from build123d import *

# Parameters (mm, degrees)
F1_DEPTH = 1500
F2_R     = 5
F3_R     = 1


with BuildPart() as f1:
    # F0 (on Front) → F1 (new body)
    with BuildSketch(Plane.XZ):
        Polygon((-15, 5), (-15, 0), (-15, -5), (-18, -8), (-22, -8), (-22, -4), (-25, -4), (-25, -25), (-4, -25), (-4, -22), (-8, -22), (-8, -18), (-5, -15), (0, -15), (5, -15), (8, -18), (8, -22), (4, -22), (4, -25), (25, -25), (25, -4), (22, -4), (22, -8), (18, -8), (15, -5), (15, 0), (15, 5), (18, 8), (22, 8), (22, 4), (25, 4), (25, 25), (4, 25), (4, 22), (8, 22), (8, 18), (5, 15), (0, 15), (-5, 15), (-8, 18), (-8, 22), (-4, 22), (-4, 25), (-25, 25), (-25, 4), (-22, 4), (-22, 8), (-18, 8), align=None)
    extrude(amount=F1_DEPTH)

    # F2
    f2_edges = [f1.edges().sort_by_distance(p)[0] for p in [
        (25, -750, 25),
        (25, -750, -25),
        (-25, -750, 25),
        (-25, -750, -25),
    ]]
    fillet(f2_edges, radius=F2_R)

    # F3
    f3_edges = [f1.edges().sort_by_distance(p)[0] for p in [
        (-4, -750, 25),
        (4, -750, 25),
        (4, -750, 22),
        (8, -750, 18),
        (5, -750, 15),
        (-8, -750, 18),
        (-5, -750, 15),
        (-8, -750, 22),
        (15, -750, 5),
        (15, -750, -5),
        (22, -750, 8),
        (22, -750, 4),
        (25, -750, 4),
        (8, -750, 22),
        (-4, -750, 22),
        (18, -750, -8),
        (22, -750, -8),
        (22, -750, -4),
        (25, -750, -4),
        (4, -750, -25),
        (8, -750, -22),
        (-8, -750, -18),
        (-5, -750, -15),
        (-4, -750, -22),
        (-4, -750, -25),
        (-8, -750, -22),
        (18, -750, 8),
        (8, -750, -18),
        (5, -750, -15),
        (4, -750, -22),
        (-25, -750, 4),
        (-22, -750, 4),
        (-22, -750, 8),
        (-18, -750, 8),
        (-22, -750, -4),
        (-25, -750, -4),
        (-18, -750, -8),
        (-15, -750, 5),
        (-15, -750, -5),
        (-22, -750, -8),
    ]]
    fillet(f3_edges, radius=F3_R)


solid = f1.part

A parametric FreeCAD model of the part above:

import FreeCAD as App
import Part
import Sketcher

V = App.Vector
Q = App.Units.Quantity


def edges_at(feature, points):
    """Names of the edges that pass closest to the given points."""
    edges = feature.Shape.Edges
    near = lambda p: min(range(len(edges)), key=lambda i: edges[i].distToShape(Part.Vertex(*p))[0])
    return sorted({f"Edge{near(p) + 1}" for p in points})


def add_polygon(sketch, points):
    """Adds a closed chain of lines whose ends are joined by coincident constraints."""
    first, n = sketch.GeometryCount, len(points)
    for a, b in zip(points, points[1:] + points[:1]):
        sketch.addGeometry(Part.LineSegment(App.Vector(*a, 0), App.Vector(*b, 0)), False)
    for i in range(n):
        sketch.addConstraint(Sketcher.Constraint("Coincident", first + i, 2, first + (i + 1) % n, 1))

doc = App.newDocument("Part")
body = doc.addObject("PartDesign::Body", "Body")

# Sketch on XZ plane
sketch1 = body.newObject("Sketcher::SketchObject", "Sketch")
sketch1.AttachmentSupport = (doc.getObject("XZ_Plane"), [""])
sketch1.MapMode = "FlatFace"
add_polygon(sketch1, [(-15, 5), (-15, -5), (-18, -8), (-22, -8), (-22, -4), (-25, -4), (-25, -25), (-4, -25), (-4, -22), (-8, -22), (-8, -18), (-5, -15), (5, -15), (8, -18), (8, -22), (4, -22), (4, -25), (25, -25), (25, -4), (22, -4), (22, -8), (18, -8), (15, -5), (15, 5), (18, 8), (22, 8), (22, 4), (25, 4), (25, 25), (4, 25), (4, 22), (8, 22), (8, 18), (5, 15), (-5, 15), (-8, 18), (-8, 22), (-4, 22), (-4, 25), (-25, 25), (-25, 4), (-22, 4), (-22, 8), (-18, 8)])  # lines 0-43
sketch1.addConstraint(Sketcher.Constraint("Vertical", 0))
sketch1.addConstraint(Sketcher.Constraint("Horizontal", 2))
sketch1.addConstraint(Sketcher.Constraint("Vertical", 3))
sketch1.addConstraint(Sketcher.Constraint("Horizontal", 4))
sketch1.addConstraint(Sketcher.Constraint("Vertical", 5))
sketch1.addConstraint(Sketcher.Constraint("Horizontal", 6))
sketch1.addConstraint(Sketcher.Constraint("Vertical", 7))
sketch1.addConstraint(Sketcher.Constraint("Horizontal", 8))
sketch1.addConstraint(Sketcher.Constraint("Vertical", 9))
sketch1.addConstraint(Sketcher.Constraint("Horizontal", 11))
sketch1.addConstraint(Sketcher.Constraint("Vertical", 13))
sketch1.addConstraint(Sketcher.Constraint("Horizontal", 14))
sketch1.addConstraint(Sketcher.Constraint("Vertical", 15))
sketch1.addConstraint(Sketcher.Constraint("Horizontal", 16))
sketch1.addConstraint(Sketcher.Constraint("Vertical", 17))
sketch1.addConstraint(Sketcher.Constraint("Horizontal", 18))
sketch1.addConstraint(Sketcher.Constraint("Vertical", 19))
sketch1.addConstraint(Sketcher.Constraint("Horizontal", 20))
sketch1.addConstraint(Sketcher.Constraint("Vertical", 22))
sketch1.addConstraint(Sketcher.Constraint("Horizontal", 24))
sketch1.addConstraint(Sketcher.Constraint("Vertical", 25))
sketch1.addConstraint(Sketcher.Constraint("Horizontal", 26))
sketch1.addConstraint(Sketcher.Constraint("Vertical", 27))
sketch1.addConstraint(Sketcher.Constraint("Horizontal", 28))
sketch1.addConstraint(Sketcher.Constraint("Vertical", 29))
sketch1.addConstraint(Sketcher.Constraint("Horizontal", 30))
sketch1.addConstraint(Sketcher.Constraint("Vertical", 31))
sketch1.addConstraint(Sketcher.Constraint("Horizontal", 33))
sketch1.addConstraint(Sketcher.Constraint("Vertical", 35))
sketch1.addConstraint(Sketcher.Constraint("Horizontal", 36))
sketch1.addConstraint(Sketcher.Constraint("Vertical", 37))
sketch1.addConstraint(Sketcher.Constraint("Horizontal", 38))
sketch1.addConstraint(Sketcher.Constraint("Vertical", 39))
sketch1.addConstraint(Sketcher.Constraint("Horizontal", 40))
sketch1.addConstraint(Sketcher.Constraint("Vertical", 41))
sketch1.addConstraint(Sketcher.Constraint("Horizontal", 42))
sketch1.addConstraint(Sketcher.Constraint("Symmetric", 0, 2, 22, 2, -1, 1))
sketch1.addConstraint(Sketcher.Constraint("Symmetric", 1, 2, 23, 2, -1, 1))
sketch1.addConstraint(Sketcher.Constraint("Symmetric", 3, 2, 25, 2, -1, 1))
sketch1.addConstraint(Sketcher.Constraint("Symmetric", 5, 2, 27, 2, -1, 1))
sketch1.addConstraint(Sketcher.Constraint("Symmetric", 7, 2, 29, 2, -1, 1))
sketch1.addConstraint(Sketcher.Constraint("Symmetric", 9, 2, 31, 2, -1, 1))
sketch1.addConstraint(Sketcher.Constraint("Symmetric", 10, 2, 32, 2, -1, 1))
sketch1.addConstraint(Sketcher.Constraint("Symmetric", 12, 2, 34, 2, -1, 1))
sketch1.addConstraint(Sketcher.Constraint("Symmetric", 14, 2, 36, 2, -1, 1))
sketch1.addConstraint(Sketcher.Constraint("Symmetric", 16, 2, 38, 2, -1, 1))
sketch1.addConstraint(Sketcher.Constraint("Symmetric", 18, 2, 40, 2, -1, 1))
sketch1.addConstraint(Sketcher.Constraint("Symmetric", 20, 2, 42, 2, -1, 1))
sketch1.addConstraint(Sketcher.Constraint("Symmetric", 9, 2, 12, 2, -2))
sketch1.addConstraint(Sketcher.Constraint("Symmetric", 7, 2, 14, 2, -2))
sketch1.addConstraint(Sketcher.Constraint("Symmetric", 5, 2, 16, 2, -2))
sketch1.addConstraint(Sketcher.Constraint("Symmetric", 3, 2, 18, 2, -2))
sketch1.addConstraint(Sketcher.Constraint("Symmetric", 1, 2, 20, 2, -2))
sketch1.addConstraint(Sketcher.Constraint("Parallel", 1, 10))
sketch1.addConstraint(Sketcher.Constraint("Perpendicular", 10, 12))
sketch1.addConstraint(Sketcher.Constraint("Parallel", 12, 21))
sketch1.addConstraint(Sketcher.Constraint("Perpendicular", 32, 34))
sketch1.addConstraint(Sketcher.Constraint("Parallel", 34, 43))
sketch1.addConstraint(Sketcher.Constraint("Horizontal", 0, 2, 21, 2))
sketch1.addConstraint(Sketcher.Constraint("Equal", 2, 8))
sketch1.addConstraint(Sketcher.Constraint("Equal", 33, 0))
sketch1.addConstraint(Sketcher.Constraint("Equal", 42, 3))
sketch1.addConstraint(Sketcher.Constraint("Equal", 38, 5))
sketch1.addConstraint(Sketcher.Constraint("Equal", 40, 7))
sketch1.addConstraint(Sketcher.Constraint("Equal", 3, 9))
sketch1.addConstraint(Sketcher.Constraint("Equal", 1, 10))
sketch1.addConstraint(Sketcher.Constraint("DistanceX", 2, 2, 2, 1, Q("4 mm")))
sketch1.addConstraint(Sketcher.Constraint("DistanceX", 4, 2, 4, 1, Q("3 mm")))
sketch1.addConstraint(Sketcher.Constraint("DistanceX", 6, 1, 6, 2, Q("21 mm")))
sketch1.addConstraint(Sketcher.Constraint("DistanceX", 11, 1, 11, 2, Q("10 mm")))
sketch1.addConstraint(Sketcher.Constraint("DistanceX", 1, 2, -1, 1, Q("18 mm")))
pad1 = body.newObject("PartDesign::Pad", "Pad")
pad1.Profile = sketch1
pad1.Length = 1500
doc.recompute()

fillet = body.newObject("PartDesign::Fillet", "Fillet")
fillet.Base = (pad1, edges_at(pad1, [
    (25, -750, 25),
    (25, -750, -25),
    (-25, -750, 25),
    (-25, -750, -25),
]))
fillet.Radius = 5
doc.recompute()

fillet2 = body.newObject("PartDesign::Fillet", "Fillet001")
fillet2.Base = (fillet, edges_at(fillet, [
    (-4, -750, 25),
    (4, -750, 25),
    (4, -750, 22),
    (8, -750, 18),
    (5, -750, 15),
    (-8, -750, 18),
    (-5, -750, 15),
    (-8, -750, 22),
    (15, -750, 5),
    (15, -750, -5),
    (22, -750, 8),
    (22, -750, 4),
    (25, -750, 4),
    (8, -750, 22),
    (-4, -750, 22),
    (18, -750, -8),
    (22, -750, -8),
    (22, -750, -4),
    (25, -750, -4),
    (4, -750, -25),
    (8, -750, -22),
    (-8, -750, -18),
    (-5, -750, -15),
    (-4, -750, -22),
    (-4, -750, -25),
    (-8, -750, -22),
    (18, -750, 8),
    (8, -750, -18),
    (5, -750, -15),
    (4, -750, -22),
    (-25, -750, 4),
    (-22, -750, 4),
    (-22, -750, 8),
    (-18, -750, 8),
    (-22, -750, -4),
    (-25, -750, -4),
    (-18, -750, -8),
    (-15, -750, 5),
    (-15, -750, -5),
    (-22, -750, -8),
]))
fillet2.Radius = 1

doc.recompute()
